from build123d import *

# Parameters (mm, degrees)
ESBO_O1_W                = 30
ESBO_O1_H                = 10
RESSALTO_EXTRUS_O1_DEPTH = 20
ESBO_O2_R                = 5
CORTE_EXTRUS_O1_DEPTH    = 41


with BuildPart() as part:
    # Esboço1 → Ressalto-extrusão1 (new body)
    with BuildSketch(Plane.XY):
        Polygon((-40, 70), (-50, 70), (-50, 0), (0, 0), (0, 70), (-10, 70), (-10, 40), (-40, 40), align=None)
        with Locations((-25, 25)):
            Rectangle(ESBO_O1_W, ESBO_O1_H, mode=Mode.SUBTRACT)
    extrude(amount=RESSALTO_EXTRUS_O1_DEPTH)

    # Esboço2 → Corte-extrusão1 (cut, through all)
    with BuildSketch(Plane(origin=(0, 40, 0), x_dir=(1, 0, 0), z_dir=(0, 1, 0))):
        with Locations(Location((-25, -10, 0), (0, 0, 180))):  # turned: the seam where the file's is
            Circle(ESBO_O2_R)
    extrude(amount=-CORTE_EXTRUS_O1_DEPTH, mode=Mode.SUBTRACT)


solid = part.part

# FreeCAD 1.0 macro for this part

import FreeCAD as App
import Part
import Sketcher

V = App.Vector


def add_polygon(sketch, points):
    """Adds a closed chain of lines whose ends are joined by coincident constraints."""
    first, n = sketch.GeometryCount, len(points)
    for a, b in zip(points, points[1:] + points[:1]):
        sketch.addGeometry(Part.LineSegment(App.Vector(*a, 0), App.Vector(*b, 0)), False)
    for i in range(n):
        sketch.addConstraint(Sketcher.Constraint("Coincident", first + i, 2, first + (i + 1) % n, 1))

doc = App.newDocument("Part")
body = doc.addObject("PartDesign::Body", "Body")

# Sketch on XY plane
sketch1 = doc.addObject("Sketcher::SketchObject", "Sketch")
body.addObject(sketch1)
sketch1.AttachmentSupport = (doc.XY_Plane, [""])
sketch1.MapMode = "FlatFace"
add_polygon(sketch1, [(-40, 70), (-50, 70), (-50, 0), (0, 0), (0, 70), (-10, 70), (-10, 40), (-40, 40)])  # lines 0-7
add_polygon(sketch1, [(-10, 20), (-40, 20), (-40, 30), (-10, 30)])  # lines 8-11
sketch1.addConstraint([
    Sketcher.Constraint("Horizontal", 0),
    Sketcher.Constraint("Vertical", 1),
    Sketcher.Constraint("Horizontal", 2),
    Sketcher.Constraint("Vertical", 3),
    Sketcher.Constraint("Horizontal", 4),
    Sketcher.Constraint("Vertical", 5),
    Sketcher.Constraint("Horizontal", 6),
    Sketcher.Constraint("Vertical", 7),
    Sketcher.Constraint("Horizontal", 8),
    Sketcher.Constraint("Vertical", 9),
    Sketcher.Constraint("Horizontal", 10),
    Sketcher.Constraint("Vertical", 11),
    Sketcher.Constraint("Coincident", 2, 2, -1, 1),
    Sketcher.Constraint("Horizontal", 0, 2, 3, 2),
    Sketcher.Constraint("Vertical", 7, 2, 8, 2),
    Sketcher.Constraint("Vertical", 5, 2, 10, 2),
    Sketcher.Constraint("Equal", 0, 4),
    Sketcher.Constraint("Equal", 10, 5),
    Sketcher.Constraint("Equal", 4, 9),
    Sketcher.Constraint("DistanceX", 0, 2, 0, 1, 10.0),
    Sketcher.Constraint("DistanceX", 2, 1, 2, 2, 50.0),
    Sketcher.Constraint("DistanceY", 1, 2, 1, 1, 70.0),
    Sketcher.Constraint("DistanceY", -1, 1, 8, 2, 20.0),
])
pad1 = doc.addObject("PartDesign::Pad", "Pad")
body.addObject(pad1)
pad1.Profile = sketch1
pad1.Length = 20

# Sketch on XZ plane
sketch2 = doc.addObject("Sketcher::SketchObject", "Sketch001")
body.addObject(sketch2)
sketch2.AttachmentSupport = (doc.XZ_Plane, [""])
sketch2.MapMode = "FlatFace"
sketch2.AttachmentOffset = App.Placement(V(0, 0, -40), App.Rotation())
sketch2.addGeometry(Part.Circle(V(-25, 10, 0), V(0, 0, 1), 5), False)
sketch2.addConstraint([
    Sketcher.Constraint("Diameter", 0, 10.0),
    Sketcher.Constraint("DistanceX", 0, 3, -1, 1, 25.0),
    Sketcher.Constraint("DistanceY", -1, 1, 0, 3, 10.0),
])
pocket1 = doc.addObject("PartDesign::Pocket", "Pocket")
body.addObject(pocket1)
pocket1.Profile = sketch2
pocket1.Type = "ThroughAll"
pocket1.Reversed = True

doc.recompute()
